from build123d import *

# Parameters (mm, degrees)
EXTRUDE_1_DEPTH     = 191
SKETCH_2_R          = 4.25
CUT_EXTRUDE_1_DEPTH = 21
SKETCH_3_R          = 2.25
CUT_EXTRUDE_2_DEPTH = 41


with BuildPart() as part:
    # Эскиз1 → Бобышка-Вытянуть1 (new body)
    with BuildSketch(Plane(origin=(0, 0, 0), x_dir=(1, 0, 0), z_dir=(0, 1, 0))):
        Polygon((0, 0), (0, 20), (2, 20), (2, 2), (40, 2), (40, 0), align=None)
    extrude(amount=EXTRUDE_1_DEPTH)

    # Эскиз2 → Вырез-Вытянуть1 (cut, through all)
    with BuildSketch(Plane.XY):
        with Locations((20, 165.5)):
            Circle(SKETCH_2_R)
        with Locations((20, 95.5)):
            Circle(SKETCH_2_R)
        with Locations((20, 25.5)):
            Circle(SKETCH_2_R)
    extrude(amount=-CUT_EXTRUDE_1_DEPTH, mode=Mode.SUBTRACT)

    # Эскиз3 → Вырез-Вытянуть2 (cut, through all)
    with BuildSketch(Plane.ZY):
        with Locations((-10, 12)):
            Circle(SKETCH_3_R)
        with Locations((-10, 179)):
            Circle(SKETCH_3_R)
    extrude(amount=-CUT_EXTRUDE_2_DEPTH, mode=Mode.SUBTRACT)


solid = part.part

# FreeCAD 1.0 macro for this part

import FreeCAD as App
import Part
import Sketcher
from FreeCAD import Vector


def add_polygon(sketch, points):
    """Adds a closed chain of lines whose ends are joined by coincident constraints."""
    first, n = sketch.GeometryCount, len(points)
    for a, b in zip(points, points[1:] + points[:1]):
        sketch.addGeometry(Part.LineSegment(App.Vector(*a, 0), App.Vector(*b, 0)), False)
    for i in range(n):
        sketch.addConstraint(Sketcher.Constraint("Coincident", first + i, 2, first + (i + 1) % n, 1))

doc = App.newDocument("Part")
body = doc.addObject("PartDesign::Body", "Body")

sketch1 = body.newObject("Sketcher::SketchObject", "Sketch")
sketch1.AttachmentSupport = (doc.getObject("XZ_Plane"), [""])
sketch1.MapMode = "FlatFace"
add_polygon(sketch1, [(0, -20), (0, 0), (40, 0), (40, -2), (2, -2), (2, -20)])
sketch1.addConstraint([
    Sketcher.Constraint("Vertical", 0),
    Sketcher.Constraint("Horizontal", 1),
    Sketcher.Constraint("Vertical", 2),
    Sketcher.Constraint("Horizontal", 3),
    Sketcher.Constraint("Vertical", 4),
    Sketcher.Constraint("Horizontal", 5),
    Sketcher.Constraint("Coincident", 0, 2, -1, 1),
    Sketcher.Constraint("Equal", 5, 2),
    Sketcher.Constraint("DistanceX", 1, 1, 1, 2, 40.0),
    Sketcher.Constraint("DistanceX", 3, 2, 3, 1, 38.0),
    Sketcher.Constraint("DistanceY", 0, 1, 0, 2, 20.0),
])
pad1 = body.newObject("PartDesign::Pad", "Pad")
pad1.Profile = sketch1
pad1.Length = 191
pad1.Reversed = True

sketch2 = body.newObject("Sketcher::SketchObject", "Sketch001")
sketch2.AttachmentSupport = (doc.getObject("XY_Plane"), [""])
sketch2.MapMode = "FlatFace"
sketch2.addGeometry([
    Part.Circle(Vector(20, 165.5, 0), Vector(0, 0, 1), 4.2),
    Part.Circle(Vector(20, 95.5, 0), Vector(0, 0, 1), 4.2),
    Part.Circle(Vector(20, 25.5, 0), Vector(0, 0, 1), 4.2),
], False)
sketch2.addConstraint([
    Sketcher.Constraint("Equal", 0, 1),
    Sketcher.Constraint("Equal", 1, 2),
    Sketcher.Constraint("Vertical", 0, 3, 1, 3),
    Sketcher.Constraint("Vertical", 1, 3, 2, 3),
    Sketcher.Constraint("Diameter", 0, 8.5),
    Sketcher.Constraint("DistanceX", -1, 1, 0, 3, 20.0),
    Sketcher.Constraint("DistanceY", 1, 3, 0, 3, 70.0),
    Sketcher.Constraint("DistanceY", 2, 3, 1, 3, 70.0),
    Sketcher.Constraint("DistanceY", -1, 1, 0, 3, 165.5),
])
pocket1 = body.newObject("PartDesign::Pocket", "Pocket")
pocket1.Profile = sketch2
pocket1.Type = "ThroughAll"

sketch3 = body.newObject("Sketcher::SketchObject", "Sketch002")
sketch3.AttachmentSupport = (doc.getObject("YZ_Plane"), [""])
sketch3.MapMode = "FlatFace"
sketch3.addGeometry([
    Part.Circle(Vector(12, -10, 0), Vector(0, 0, 1), 2.2),
    Part.Circle(Vector(179, -10, 0), Vector(0, 0, 1), 2.2),
], False)
sketch3.addConstraint([
    Sketcher.Constraint("Equal", 0, 1),
    Sketcher.Constraint("Horizontal", 0, 3, 1, 3),
    Sketcher.Constraint("Diameter", 0, 4.5),
    Sketcher.Constraint("DistanceX", -1, 1, 0, 3, 12.0),
    Sketcher.Constraint("DistanceY", 0, 3, -1, 1, 10.0),
    Sketcher.Constraint("DistanceX", -1, 1, 1, 3, 179.0),
])
pocket2 = body.newObject("PartDesign::Pocket", "Pocket001")
pocket2.Profile = sketch3
pocket2.Type = "ThroughAll"
pocket2.Reversed = True

doc.recompute()
